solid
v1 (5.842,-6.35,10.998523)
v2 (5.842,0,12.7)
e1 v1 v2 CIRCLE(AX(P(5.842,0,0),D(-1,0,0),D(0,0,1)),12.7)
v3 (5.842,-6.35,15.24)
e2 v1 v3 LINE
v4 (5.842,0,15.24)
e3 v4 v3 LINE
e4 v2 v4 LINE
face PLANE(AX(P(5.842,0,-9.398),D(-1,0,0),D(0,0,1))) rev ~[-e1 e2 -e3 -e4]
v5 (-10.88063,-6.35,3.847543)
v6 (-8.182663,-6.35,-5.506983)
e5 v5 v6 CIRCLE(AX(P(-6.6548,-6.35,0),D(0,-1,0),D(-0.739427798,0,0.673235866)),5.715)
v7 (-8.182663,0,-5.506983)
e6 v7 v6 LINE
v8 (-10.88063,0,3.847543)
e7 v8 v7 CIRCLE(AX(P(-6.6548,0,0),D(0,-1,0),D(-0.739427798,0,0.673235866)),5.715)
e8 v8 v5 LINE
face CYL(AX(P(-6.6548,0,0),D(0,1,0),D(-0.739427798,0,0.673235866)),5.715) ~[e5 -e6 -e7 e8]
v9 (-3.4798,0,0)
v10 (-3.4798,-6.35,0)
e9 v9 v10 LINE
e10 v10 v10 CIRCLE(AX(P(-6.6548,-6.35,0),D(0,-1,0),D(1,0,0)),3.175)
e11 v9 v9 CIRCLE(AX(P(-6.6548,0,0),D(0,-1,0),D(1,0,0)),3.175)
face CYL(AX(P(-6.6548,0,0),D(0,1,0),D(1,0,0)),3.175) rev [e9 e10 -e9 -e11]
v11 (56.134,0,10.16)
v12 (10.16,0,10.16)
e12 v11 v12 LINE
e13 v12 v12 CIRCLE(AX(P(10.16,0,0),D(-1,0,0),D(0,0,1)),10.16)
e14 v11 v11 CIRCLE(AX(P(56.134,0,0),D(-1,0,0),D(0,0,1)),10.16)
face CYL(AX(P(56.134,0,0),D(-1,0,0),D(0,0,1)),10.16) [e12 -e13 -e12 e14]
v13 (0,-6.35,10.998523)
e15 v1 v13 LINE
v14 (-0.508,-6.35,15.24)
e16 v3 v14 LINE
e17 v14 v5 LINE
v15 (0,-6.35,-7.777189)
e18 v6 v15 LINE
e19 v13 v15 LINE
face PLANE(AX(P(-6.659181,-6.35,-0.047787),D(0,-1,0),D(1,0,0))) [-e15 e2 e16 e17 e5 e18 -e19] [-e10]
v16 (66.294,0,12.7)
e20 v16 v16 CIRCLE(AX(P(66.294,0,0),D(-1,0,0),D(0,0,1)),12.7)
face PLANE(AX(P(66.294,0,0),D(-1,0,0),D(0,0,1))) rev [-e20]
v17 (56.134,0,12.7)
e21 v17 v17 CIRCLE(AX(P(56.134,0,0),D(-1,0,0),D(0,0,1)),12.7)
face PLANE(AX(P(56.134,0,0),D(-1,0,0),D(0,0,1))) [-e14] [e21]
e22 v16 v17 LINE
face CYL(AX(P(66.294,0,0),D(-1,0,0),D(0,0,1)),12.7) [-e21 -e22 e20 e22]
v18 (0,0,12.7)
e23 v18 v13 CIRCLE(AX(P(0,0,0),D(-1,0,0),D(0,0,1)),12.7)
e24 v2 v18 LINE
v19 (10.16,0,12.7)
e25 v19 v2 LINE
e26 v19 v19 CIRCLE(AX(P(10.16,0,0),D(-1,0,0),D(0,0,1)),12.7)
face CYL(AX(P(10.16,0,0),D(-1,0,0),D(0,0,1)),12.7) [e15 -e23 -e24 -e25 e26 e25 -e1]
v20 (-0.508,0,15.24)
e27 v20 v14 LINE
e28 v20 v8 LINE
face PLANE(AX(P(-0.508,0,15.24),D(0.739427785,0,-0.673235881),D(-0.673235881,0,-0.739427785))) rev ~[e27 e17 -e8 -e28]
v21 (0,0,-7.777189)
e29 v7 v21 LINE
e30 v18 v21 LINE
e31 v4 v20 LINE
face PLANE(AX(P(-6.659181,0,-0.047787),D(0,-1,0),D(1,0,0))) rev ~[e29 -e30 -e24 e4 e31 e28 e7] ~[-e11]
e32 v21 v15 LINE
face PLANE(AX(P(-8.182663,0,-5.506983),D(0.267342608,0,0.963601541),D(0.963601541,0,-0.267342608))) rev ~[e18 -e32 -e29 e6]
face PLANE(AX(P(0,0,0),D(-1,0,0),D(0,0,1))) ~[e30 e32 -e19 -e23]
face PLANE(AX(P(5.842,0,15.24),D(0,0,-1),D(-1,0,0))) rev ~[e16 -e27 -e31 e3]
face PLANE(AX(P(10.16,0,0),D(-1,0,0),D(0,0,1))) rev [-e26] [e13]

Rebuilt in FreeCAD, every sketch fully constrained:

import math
import FreeCAD as App
import Part
import Sketcher
Q = App.Units.Quantity


def add_polygon(sketch, points):
    """Adds a closed chain of lines whose ends are joined by coincident constraints."""
    first, n = sketch.GeometryCount, len(points)
    for a, b in zip(points, points[1:] + points[:1]):
        sketch.addGeometry(Part.LineSegment(App.Vector(*a, 0), App.Vector(*b, 0)), False)
    for i in range(n):
        sketch.addConstraint(Sketcher.Constraint("Coincident", first + i, 2, first + (i + 1) % n, 1))

doc = App.newDocument("Part")
body = doc.addObject("PartDesign::Body", "Body")

# Sketch on XZ plane
sketch1 = body.newObject("Sketcher::SketchObject", "Sketch")
sketch1.AttachmentSupport = (doc.getObject("XZ_Plane"), [""])
sketch1.MapMode = "FlatFace"
add_polygon(sketch1, [(66.294, 0), (66.294, 12.7), (56.134, 12.7), (56.134, 10.16), (10.16, 10.16), (10.16, 12.7), (0, 12.7), (0, 0)])  # lines 0-7
sketch1.addConstraint([
    Sketcher.Constraint("Vertical", 0),
    Sketcher.Constraint("Horizontal", 1),
    Sketcher.Constraint("Vertical", 2),
    Sketcher.Constraint("Horizontal", 3),
    Sketcher.Constraint("Vertical", 4),
    Sketcher.Constraint("Horizontal", 5),
    Sketcher.Constraint("Vertical", 6),
    Sketcher.Constraint("Horizontal", 7),
    Sketcher.Constraint("Coincident", 6, 2, -1, 1),
    Sketcher.Constraint("Horizontal", 1, 2, 4, 2),
    Sketcher.Constraint("Equal", 1, 5),
    Sketcher.Constraint("DistanceX", 1, 2, 1, 1, Q("0.4 in")),
    Sketcher.Constraint("DistanceY", 0, 1, 0, 2, Q("0.5 in")),
    Sketcher.Constraint("DistanceY", 2, 2, 2, 1, Q("0.1 in")),
    Sketcher.Constraint("DistanceX", 3, 2, 3, 1, Q("1.81 in")),
])
revolution = body.newObject("PartDesign::Revolution", "Revolution")
revolution.Profile = sketch1
revolution.ReferenceAxis = (sketch1, ["H_Axis"])
revolution.Angle = 360

# Sketch on XZ plane
sketch2 = body.newObject("Sketcher::SketchObject", "Sketch001")
sketch2.AttachmentSupport = (doc.getObject("XZ_Plane"), [""])
sketch2.MapMode = "FlatFace"
sketch2.addGeometry([
    Part.LineSegment(App.Vector(5.842, 15.24, 0), App.Vector(-0.508, 15.24, 0)),  # 0
    Part.LineSegment(App.Vector(-0.508, 15.24, 0), App.Vector(-10.88063, 3.847543, 0)),  # 1
    Part.ArcOfCircle(Part.Circle(App.Vector(-6.6548, 0, 0), App.Vector(0, 0, 1), 5.715), math.radians(137.682696), math.radians(254.493803)),  # 2
    Part.LineSegment(App.Vector(-8.182663, -5.506983, 0), App.Vector(5.842, -9.398, 0)),  # 3
    Part.LineSegment(App.Vector(5.842, -9.398, 0), App.Vector(5.842, 15.24, 0)),  # 4
    Part.Circle(App.Vector(-6.6548, 0, 0), App.Vector(0, 0, 1), 3.175),  # 5
], False)
sketch2.addConstraint([
    Sketcher.Constraint("Coincident", 0, 2, 1, 1),
    Sketcher.Constraint("Tangent", 1, 2, 2, 1),
    Sketcher.Constraint("Tangent", 2, 2, 3, 1),
    Sketcher.Constraint("Coincident", 3, 2, 4, 1),
    Sketcher.Constraint("Coincident", 4, 2, 0, 1),
    Sketcher.Constraint("Horizontal", 0),
    Sketcher.Constraint("Vertical", 4),
    Sketcher.Constraint("Coincident", 5, 3, 2, 3),
    Sketcher.Constraint("PointOnObject", 2, 3, -1),
    Sketcher.Constraint("Diameter", 5, Q("0.25 in")),
    Sketcher.Constraint("Radius", 2, Q("0.225 in")),
    Sketcher.Constraint("DistanceX", 0, 2, 0, 1, Q("0.25 in")),
    Sketcher.Constraint("DistanceY", 4, 1, 4, 2, Q("0.97 in")),
    Sketcher.Constraint("DistanceY", -1, 1, 0, 2, Q("0.6 in")),
    Sketcher.Constraint("DistanceX", 0, 2, -1, 1, Q("0.02 in")),
    Sketcher.Constraint("DistanceX", 2, 3, -1, 1, Q("0.262 in")),
])
pad1 = body.newObject("PartDesign::Pad", "Pad")
pad1.Profile = sketch2
pad1.Length = Q("0.25 in")

doc.recompute()
